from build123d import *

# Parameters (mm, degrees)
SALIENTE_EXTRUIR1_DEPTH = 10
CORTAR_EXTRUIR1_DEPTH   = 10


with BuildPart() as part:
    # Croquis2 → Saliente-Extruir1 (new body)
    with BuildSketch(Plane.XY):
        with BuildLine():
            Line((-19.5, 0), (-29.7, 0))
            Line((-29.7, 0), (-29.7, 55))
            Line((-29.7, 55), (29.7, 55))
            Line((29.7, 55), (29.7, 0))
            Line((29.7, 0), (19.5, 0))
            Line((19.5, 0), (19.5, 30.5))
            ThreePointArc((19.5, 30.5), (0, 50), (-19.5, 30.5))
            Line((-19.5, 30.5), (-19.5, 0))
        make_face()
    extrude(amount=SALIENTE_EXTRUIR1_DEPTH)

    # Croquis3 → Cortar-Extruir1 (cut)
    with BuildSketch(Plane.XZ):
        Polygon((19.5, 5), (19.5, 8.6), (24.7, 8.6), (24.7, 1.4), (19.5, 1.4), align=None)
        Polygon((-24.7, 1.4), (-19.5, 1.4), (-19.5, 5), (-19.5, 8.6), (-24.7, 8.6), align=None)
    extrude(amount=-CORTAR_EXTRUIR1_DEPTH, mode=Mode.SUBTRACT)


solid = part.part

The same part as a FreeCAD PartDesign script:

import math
import FreeCAD as App
import Part
import Sketcher
from FreeCAD import Vector
Q = App.Units.Quantity


def add_polygon(sketch, points):
    """Adds a closed chain of lines whose ends are joined by coincident constraints."""
    first, n = sketch.GeometryCount, len(points)
    for a, b in zip(points, points[1:] + points[:1]):
        sketch.addGeometry(Part.LineSegment(App.Vector(*a, 0), App.Vector(*b, 0)), False)
    for i in range(n):
        sketch.addConstraint(Sketcher.Constraint("Coincident", first + i, 2, first + (i + 1) % n, 1))

doc = App.newDocument("Part")
body = doc.addObject("PartDesign::Body", "Body")

# Sketch on XY plane
sketch1 = body.newObject("Sketcher::SketchObject", "Sketch")
sketch1.AttachmentSupport = (doc.getObject("XY_Plane"), [""])
sketch1.MapMode = "FlatFace"
sketch1.addGeometry([
    Part.LineSegment(Vector(-30, 0, 0), Vector(-20, 0, 0)),  # 0
    Part.LineSegment(Vector(-20, 0, 0), Vector(-20, 30, 0)),  # 1
    Part.ArcOfCircle(Part.Circle(Vector(0, 30, 0), Vector(0, 0, 1), 20), math.radians(0), math.radians(180)),  # 2
    Part.LineSegment(Vector(20, 30, 0), Vector(20, 0, 0)),  # 3
    Part.LineSegment(Vector(20, 0, 0), Vector(30, 0, 0)),  # 4
    Part.LineSegment(Vector(30, 0, 0), Vector(30, 55, 0)),  # 5
    Part.LineSegment(Vector(30, 55, 0), Vector(-30, 55, 0)),  # 6
    Part.LineSegment(Vector(-30, 55, 0), Vector(-30, 0, 0)),  # 7
], False)
sketch1.addConstraint([
    Sketcher.Constraint("Coincident", 0, 2, 1, 1),
    Sketcher.Constraint("Tangent", 1, 2, 2, 2),
    Sketcher.Constraint("Tangent", 2, 1, 3, 1),
    Sketcher.Constraint("Coincident", 3, 2, 4, 1),
    Sketcher.Constraint("Coincident", 4, 2, 5, 1),
    Sketcher.Constraint("Coincident", 5, 2, 6, 1),
    Sketcher.Constraint("Coincident", 6, 2, 7, 1),
    Sketcher.Constraint("Coincident", 7, 2, 0, 1),
    Sketcher.Constraint("Horizontal", 0),
    Sketcher.Constraint("Vertical", 1),
    Sketcher.Constraint("Vertical", 3),
    Sketcher.Constraint("Horizontal", 4),
    Sketcher.Constraint("Vertical", 5),
    Sketcher.Constraint("Horizontal", 6),
    Sketcher.Constraint("Vertical", 7),
    Sketcher.Constraint("Symmetric", 0, 2, 3, 2, -1, 1),
    Sketcher.Constraint("Symmetric", 4, 2, 7, 2, -2),
    Sketcher.Constraint("Radius", 2, Q("19.5 mm")),
    Sketcher.Constraint("DistanceY", 5, 1, 5, 2, Q("55 mm")),
    Sketcher.Constraint("DistanceX", 0, 1, 0, 2, Q("10.2 mm")),
    Sketcher.Constraint("DistanceY", 1, 1, 1, 2, Q("30.5 mm")),
])
pad1 = body.newObject("PartDesign::Pad", "Pad")
pad1.Profile = sketch1
pad1.Length = 10

# Sketch on XZ plane
sketch2 = body.newObject("Sketcher::SketchObject", "Sketch001")
sketch2.AttachmentSupport = (doc.getObject("XZ_Plane"), [""])
sketch2.MapMode = "FlatFace"
add_polygon(sketch2, [(20, 9), (20, 1), (25, 1), (25, 9)])  # lines 0-3
add_polygon(sketch2, [(-25, 1), (-20, 1), (-20, 9), (-25, 9)])  # lines 4-7
sketch2.addConstraint([
    Sketcher.Constraint("Vertical", 0),
    Sketcher.Constraint("Horizontal", 1),
    Sketcher.Constraint("Vertical", 2),
    Sketcher.Constraint("Horizontal", 3),
    Sketcher.Constraint("Horizontal", 4),
    Sketcher.Constraint("Vertical", 5),
    Sketcher.Constraint("Horizontal", 6),
    Sketcher.Constraint("Vertical", 7),
    Sketcher.Constraint("Symmetric", 0, 2, 4, 2, -2),
    Sketcher.Constraint("Symmetric", 2, 2, 6, 2, -2),
    Sketcher.Constraint("DistanceX", 1, 1, 1, 2, Q("5.2 mm")),
    Sketcher.Constraint("DistanceY", 0, 2, 0, 1, Q("7.2 mm")),
    Sketcher.Constraint("DistanceX", 4, 2, 0, 2, Q("39 mm")),
    Sketcher.Constraint("DistanceY", -1, 1, 0, 2, Q("1.4 mm")),
])
pocket1 = body.newObject("PartDesign::Pocket", "Pocket")
pocket1.Profile = sketch2
pocket1.Length = 10

doc.recompute()
